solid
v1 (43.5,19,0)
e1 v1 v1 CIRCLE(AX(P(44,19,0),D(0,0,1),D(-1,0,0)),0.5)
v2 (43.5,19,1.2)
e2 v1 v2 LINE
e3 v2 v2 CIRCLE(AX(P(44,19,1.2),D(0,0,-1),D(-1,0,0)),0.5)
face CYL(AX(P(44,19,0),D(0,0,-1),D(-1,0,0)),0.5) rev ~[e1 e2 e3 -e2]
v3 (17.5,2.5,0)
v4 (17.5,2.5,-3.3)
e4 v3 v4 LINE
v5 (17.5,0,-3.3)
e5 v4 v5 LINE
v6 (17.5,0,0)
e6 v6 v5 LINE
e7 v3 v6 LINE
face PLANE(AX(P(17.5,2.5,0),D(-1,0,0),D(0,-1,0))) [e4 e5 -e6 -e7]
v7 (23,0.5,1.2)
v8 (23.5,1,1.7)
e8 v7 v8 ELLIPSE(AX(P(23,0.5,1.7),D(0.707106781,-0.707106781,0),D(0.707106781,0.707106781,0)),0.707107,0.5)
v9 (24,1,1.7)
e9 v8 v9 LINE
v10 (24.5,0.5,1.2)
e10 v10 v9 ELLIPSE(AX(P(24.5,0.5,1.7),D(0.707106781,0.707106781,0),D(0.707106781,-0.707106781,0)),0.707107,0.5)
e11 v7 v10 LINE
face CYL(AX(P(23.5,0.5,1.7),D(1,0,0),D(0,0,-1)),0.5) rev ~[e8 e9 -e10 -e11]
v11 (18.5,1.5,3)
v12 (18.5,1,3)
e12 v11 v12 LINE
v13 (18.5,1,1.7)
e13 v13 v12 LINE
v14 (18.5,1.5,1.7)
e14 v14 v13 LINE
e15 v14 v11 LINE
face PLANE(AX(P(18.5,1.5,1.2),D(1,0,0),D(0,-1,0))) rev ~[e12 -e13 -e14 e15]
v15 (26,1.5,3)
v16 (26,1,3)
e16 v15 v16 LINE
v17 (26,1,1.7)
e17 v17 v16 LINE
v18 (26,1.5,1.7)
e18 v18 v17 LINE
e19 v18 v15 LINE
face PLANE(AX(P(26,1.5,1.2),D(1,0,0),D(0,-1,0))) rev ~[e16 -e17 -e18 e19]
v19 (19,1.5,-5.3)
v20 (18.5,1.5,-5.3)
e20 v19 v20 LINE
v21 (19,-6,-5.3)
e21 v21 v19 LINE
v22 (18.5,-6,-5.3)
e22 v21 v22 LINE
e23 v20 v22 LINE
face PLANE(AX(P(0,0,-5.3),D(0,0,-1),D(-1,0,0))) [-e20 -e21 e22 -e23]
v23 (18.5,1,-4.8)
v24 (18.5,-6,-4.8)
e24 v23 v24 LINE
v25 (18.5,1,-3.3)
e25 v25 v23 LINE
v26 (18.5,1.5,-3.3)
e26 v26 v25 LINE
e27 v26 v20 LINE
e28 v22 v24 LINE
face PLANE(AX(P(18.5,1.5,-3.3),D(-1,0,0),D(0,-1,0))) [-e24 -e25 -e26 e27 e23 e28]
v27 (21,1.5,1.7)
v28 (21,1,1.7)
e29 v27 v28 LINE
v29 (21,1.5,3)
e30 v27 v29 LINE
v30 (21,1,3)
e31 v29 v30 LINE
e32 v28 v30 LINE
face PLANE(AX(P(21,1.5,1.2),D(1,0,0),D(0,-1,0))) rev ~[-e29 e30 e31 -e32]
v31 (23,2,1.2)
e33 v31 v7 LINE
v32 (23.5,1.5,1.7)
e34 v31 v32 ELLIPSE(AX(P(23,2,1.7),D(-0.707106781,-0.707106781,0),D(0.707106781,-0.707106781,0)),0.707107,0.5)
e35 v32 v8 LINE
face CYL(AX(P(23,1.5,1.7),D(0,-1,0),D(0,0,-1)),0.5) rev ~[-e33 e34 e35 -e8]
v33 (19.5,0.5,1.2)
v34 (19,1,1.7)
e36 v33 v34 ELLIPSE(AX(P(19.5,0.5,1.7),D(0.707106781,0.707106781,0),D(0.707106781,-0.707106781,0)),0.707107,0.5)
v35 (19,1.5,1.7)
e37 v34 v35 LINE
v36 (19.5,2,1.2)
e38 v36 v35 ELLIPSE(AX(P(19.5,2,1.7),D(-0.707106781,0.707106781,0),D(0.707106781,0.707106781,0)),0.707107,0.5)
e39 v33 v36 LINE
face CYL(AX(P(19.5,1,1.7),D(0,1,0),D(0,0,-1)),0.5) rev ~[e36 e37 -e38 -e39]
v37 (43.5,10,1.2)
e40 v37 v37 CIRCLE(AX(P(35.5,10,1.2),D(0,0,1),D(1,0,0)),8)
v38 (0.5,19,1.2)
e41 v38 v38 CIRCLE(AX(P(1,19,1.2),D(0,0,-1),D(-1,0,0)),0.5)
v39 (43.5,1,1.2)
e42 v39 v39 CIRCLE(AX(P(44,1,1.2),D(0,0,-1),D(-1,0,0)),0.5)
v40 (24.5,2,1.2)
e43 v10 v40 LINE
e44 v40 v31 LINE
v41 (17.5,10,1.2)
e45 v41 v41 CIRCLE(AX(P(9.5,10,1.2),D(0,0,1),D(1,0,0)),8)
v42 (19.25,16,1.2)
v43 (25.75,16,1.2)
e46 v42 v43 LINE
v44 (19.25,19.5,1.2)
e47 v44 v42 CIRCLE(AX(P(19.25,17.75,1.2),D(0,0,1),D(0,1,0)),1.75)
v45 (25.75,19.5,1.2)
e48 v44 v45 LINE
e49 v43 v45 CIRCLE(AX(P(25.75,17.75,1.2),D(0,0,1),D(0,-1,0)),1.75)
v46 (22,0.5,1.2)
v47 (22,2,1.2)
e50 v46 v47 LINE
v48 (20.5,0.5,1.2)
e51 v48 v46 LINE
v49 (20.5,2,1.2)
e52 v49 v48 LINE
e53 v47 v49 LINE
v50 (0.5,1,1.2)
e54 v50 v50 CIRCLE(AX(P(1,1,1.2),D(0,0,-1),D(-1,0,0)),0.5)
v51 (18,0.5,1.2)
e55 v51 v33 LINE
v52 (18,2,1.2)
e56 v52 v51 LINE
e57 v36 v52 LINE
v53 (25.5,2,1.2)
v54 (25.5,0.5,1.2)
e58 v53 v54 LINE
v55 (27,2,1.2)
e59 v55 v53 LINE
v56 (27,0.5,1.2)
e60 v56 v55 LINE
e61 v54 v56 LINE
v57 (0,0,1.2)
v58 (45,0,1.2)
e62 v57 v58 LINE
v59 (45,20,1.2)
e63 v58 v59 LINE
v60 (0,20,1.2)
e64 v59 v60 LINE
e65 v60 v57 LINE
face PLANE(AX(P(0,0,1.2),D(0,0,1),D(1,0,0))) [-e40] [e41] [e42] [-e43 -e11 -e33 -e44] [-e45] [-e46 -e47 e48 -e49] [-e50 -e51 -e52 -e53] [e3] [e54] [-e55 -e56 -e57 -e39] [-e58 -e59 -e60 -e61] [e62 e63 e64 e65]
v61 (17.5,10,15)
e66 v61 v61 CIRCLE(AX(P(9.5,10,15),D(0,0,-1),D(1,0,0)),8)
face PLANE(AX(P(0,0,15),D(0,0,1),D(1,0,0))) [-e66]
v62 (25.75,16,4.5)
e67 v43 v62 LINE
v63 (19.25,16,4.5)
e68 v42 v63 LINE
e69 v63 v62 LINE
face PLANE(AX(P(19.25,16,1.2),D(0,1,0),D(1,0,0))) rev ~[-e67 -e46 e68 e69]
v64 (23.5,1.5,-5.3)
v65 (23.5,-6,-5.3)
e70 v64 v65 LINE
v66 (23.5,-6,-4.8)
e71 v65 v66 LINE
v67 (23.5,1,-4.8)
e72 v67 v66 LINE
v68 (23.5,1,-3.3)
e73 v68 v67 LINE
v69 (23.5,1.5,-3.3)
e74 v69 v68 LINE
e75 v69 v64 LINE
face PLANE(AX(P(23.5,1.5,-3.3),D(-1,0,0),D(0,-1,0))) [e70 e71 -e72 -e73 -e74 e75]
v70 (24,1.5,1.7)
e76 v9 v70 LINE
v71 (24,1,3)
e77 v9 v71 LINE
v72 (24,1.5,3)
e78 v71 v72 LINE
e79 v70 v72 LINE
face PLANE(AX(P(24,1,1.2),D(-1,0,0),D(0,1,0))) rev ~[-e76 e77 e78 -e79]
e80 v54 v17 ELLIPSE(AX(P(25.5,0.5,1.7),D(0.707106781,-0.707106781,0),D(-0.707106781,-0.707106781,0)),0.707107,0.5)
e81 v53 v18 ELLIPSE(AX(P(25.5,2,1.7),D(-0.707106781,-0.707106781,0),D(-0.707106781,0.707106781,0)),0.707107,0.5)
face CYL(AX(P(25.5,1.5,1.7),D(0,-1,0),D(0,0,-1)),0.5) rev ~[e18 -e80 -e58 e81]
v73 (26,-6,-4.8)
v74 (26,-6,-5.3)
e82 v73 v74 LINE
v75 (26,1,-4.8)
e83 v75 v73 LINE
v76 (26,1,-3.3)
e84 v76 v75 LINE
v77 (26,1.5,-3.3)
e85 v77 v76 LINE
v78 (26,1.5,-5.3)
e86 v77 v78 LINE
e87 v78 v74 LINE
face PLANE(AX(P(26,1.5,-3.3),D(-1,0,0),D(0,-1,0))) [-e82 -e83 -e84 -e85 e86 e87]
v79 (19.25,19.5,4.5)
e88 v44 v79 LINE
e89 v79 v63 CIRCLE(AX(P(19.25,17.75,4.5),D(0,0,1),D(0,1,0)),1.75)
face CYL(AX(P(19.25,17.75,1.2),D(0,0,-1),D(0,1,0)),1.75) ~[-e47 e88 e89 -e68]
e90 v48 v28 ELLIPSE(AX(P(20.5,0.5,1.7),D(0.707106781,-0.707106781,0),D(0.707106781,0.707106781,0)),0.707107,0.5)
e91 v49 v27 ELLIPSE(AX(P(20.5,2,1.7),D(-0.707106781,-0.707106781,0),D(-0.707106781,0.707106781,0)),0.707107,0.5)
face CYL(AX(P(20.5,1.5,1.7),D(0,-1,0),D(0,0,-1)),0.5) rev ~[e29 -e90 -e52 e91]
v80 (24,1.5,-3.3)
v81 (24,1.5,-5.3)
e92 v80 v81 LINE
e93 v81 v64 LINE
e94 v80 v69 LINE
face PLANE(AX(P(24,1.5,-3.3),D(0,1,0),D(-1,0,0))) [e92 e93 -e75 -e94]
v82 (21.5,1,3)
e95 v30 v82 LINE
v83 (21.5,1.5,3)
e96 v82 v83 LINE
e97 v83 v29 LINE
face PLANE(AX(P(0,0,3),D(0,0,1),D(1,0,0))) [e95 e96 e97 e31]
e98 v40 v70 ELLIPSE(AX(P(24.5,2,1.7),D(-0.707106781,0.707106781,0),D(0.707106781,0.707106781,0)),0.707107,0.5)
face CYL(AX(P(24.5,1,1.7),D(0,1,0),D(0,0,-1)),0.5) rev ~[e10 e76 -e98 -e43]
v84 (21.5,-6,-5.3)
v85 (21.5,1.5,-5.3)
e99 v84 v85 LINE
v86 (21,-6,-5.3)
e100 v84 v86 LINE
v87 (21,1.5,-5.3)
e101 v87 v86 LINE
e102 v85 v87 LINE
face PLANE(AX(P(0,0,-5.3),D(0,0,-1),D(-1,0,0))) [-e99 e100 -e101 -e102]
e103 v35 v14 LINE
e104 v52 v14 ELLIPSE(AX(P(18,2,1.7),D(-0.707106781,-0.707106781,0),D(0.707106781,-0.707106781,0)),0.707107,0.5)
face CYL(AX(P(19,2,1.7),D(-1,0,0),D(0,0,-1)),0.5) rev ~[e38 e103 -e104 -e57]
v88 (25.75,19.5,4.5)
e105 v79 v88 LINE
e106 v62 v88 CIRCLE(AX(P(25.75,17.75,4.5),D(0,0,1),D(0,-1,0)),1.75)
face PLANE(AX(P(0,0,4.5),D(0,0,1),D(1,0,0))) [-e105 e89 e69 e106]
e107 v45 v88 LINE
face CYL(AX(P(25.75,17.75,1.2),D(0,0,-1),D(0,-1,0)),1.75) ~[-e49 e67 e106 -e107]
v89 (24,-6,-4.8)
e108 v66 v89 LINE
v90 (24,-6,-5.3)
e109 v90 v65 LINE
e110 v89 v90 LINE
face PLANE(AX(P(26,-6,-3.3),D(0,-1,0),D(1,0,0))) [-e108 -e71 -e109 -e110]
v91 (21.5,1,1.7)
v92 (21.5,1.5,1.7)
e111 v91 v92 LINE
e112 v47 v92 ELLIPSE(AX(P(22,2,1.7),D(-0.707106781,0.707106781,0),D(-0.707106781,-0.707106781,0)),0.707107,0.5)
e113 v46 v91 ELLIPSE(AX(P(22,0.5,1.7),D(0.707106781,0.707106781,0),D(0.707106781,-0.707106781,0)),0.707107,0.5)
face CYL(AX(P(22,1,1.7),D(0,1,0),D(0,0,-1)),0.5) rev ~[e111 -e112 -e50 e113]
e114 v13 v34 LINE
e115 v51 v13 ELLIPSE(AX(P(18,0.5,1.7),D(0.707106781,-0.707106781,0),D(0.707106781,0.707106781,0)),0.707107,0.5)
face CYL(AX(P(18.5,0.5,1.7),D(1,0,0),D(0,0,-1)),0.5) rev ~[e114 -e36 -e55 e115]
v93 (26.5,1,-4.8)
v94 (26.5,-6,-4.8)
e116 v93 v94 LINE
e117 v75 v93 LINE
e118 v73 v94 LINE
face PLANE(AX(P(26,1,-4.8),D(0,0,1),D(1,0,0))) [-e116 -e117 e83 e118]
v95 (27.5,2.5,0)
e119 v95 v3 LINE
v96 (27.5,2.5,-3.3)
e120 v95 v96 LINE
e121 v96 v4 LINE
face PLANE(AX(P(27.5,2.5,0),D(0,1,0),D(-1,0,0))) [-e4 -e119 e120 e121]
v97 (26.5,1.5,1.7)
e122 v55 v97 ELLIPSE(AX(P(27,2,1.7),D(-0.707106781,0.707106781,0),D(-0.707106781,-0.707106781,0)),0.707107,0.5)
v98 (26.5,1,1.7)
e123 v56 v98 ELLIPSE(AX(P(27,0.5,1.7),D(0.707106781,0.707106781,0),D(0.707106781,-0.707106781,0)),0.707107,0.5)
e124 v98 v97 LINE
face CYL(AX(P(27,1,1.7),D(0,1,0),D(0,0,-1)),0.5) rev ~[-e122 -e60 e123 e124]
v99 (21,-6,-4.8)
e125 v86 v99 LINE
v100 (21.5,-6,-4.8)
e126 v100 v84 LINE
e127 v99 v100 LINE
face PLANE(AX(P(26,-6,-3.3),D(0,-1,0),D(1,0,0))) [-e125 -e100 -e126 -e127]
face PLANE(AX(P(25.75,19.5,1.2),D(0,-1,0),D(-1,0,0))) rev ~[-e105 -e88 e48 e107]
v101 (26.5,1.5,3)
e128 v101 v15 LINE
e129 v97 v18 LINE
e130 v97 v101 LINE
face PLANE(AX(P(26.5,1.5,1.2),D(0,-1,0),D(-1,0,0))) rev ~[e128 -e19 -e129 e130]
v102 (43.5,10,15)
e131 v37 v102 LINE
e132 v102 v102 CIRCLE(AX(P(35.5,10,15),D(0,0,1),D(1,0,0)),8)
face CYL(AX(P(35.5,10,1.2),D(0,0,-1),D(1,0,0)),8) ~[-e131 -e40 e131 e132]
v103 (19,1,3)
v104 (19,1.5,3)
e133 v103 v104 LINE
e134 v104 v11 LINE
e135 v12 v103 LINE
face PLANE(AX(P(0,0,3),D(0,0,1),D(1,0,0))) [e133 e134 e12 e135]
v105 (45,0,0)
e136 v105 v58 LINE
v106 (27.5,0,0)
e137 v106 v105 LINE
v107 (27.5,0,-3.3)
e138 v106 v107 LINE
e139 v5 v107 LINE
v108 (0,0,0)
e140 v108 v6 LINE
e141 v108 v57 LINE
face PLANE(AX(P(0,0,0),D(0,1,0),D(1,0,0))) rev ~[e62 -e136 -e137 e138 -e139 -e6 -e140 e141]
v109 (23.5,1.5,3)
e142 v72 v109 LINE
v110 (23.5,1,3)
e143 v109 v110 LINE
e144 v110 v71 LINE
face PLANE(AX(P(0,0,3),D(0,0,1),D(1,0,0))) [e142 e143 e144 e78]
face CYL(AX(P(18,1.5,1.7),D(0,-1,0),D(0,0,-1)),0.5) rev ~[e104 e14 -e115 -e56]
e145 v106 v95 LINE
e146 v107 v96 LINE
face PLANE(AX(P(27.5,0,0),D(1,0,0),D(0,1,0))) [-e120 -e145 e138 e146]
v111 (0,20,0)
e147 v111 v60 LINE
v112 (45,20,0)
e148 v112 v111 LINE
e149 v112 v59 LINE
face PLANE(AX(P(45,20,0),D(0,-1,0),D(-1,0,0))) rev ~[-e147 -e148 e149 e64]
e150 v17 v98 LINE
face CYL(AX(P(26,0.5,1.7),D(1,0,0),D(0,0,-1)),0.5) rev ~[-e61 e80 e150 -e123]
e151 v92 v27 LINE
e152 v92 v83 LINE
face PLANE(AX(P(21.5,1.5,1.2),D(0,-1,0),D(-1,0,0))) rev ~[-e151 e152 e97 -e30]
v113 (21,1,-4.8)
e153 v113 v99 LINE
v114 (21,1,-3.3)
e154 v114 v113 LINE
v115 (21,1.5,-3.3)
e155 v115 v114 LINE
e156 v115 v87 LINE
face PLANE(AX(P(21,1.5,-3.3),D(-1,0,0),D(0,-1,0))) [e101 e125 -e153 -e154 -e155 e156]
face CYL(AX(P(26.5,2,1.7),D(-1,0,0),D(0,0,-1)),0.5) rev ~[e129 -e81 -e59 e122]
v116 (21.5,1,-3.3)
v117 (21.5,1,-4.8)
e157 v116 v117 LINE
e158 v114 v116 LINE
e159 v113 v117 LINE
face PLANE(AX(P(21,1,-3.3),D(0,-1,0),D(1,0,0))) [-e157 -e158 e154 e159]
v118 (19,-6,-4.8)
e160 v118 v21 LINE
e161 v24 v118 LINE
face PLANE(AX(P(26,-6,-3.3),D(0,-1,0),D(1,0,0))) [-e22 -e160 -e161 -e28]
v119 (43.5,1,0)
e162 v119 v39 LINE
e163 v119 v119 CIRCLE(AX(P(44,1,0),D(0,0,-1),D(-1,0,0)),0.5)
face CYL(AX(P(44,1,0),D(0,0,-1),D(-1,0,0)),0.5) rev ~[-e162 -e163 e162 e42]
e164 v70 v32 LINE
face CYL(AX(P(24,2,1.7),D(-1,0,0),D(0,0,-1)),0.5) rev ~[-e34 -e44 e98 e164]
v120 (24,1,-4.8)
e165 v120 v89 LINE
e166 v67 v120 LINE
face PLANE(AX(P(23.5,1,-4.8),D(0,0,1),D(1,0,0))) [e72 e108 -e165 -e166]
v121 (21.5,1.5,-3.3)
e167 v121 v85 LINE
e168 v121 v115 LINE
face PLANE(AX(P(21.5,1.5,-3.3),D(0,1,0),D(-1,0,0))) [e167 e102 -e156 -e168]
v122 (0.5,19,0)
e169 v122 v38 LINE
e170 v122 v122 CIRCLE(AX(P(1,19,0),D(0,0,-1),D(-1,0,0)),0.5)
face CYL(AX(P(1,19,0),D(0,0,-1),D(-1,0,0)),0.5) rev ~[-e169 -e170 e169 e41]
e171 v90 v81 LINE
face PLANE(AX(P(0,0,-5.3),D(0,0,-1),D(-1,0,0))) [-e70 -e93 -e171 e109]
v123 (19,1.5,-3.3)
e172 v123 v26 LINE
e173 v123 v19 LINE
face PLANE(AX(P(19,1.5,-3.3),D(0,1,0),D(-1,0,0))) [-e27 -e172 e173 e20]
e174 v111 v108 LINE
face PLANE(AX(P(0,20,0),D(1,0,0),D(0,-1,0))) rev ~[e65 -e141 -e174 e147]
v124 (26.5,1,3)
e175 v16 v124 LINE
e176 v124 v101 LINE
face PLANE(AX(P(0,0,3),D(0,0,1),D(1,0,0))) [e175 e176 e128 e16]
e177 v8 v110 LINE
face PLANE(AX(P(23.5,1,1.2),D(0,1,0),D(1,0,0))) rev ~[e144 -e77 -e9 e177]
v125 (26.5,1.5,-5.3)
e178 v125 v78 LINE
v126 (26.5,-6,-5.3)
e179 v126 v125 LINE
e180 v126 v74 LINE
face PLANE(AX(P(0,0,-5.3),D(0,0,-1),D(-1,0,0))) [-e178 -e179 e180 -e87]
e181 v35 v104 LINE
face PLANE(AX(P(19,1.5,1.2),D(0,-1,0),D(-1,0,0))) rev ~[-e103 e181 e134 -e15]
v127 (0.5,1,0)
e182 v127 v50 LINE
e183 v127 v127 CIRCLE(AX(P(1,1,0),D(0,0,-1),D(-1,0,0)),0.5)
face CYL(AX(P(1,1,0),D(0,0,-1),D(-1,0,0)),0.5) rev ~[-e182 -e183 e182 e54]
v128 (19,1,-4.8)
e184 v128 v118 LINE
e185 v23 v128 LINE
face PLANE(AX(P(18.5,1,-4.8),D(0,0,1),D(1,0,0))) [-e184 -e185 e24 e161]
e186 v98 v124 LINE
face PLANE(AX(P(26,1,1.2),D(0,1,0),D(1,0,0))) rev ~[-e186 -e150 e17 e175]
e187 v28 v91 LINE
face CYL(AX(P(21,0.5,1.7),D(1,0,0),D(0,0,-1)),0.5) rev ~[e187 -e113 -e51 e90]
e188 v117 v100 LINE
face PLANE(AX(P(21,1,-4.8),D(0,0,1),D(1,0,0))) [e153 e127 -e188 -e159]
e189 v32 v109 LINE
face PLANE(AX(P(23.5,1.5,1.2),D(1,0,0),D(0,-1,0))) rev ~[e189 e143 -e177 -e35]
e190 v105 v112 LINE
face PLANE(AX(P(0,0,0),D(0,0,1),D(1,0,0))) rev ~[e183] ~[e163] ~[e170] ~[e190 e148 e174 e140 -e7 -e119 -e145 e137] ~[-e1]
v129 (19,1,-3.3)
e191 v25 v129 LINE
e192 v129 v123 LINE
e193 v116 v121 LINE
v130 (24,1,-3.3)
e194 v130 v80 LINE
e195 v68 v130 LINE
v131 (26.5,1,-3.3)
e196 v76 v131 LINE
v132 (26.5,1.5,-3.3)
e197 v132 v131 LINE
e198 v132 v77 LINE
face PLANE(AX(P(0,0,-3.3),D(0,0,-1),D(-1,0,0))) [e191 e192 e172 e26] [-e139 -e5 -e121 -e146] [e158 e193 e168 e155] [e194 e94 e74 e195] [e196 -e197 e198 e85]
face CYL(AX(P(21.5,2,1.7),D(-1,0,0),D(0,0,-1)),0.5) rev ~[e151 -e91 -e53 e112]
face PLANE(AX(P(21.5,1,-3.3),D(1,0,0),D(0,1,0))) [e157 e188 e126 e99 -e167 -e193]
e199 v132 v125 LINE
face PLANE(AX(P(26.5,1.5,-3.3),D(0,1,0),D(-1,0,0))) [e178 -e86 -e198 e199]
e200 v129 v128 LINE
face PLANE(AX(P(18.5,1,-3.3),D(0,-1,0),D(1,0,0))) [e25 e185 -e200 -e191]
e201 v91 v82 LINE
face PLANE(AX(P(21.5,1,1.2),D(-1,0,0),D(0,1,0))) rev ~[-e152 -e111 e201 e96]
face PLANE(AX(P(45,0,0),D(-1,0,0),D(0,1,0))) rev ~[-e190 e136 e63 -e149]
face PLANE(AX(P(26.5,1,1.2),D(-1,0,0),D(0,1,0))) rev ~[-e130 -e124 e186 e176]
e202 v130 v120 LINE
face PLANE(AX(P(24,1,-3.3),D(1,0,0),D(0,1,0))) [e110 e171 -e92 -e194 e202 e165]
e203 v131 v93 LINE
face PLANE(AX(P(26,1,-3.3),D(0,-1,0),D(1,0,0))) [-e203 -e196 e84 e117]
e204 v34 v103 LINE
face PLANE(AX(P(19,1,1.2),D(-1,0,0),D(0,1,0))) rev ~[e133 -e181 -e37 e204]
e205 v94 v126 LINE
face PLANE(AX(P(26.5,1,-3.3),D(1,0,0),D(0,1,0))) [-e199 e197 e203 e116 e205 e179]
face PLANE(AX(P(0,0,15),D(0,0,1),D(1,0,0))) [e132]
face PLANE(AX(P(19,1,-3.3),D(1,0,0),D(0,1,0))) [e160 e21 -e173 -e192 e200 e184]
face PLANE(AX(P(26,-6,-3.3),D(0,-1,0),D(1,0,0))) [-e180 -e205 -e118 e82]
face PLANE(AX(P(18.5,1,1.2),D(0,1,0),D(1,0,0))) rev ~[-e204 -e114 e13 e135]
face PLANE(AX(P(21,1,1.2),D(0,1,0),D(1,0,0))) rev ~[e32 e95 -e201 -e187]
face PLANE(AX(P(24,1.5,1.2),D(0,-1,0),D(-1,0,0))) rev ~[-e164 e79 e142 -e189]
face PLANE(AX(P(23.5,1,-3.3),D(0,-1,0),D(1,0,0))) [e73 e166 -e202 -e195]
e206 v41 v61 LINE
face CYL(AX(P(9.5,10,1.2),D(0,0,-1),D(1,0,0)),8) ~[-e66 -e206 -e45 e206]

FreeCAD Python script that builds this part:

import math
import FreeCAD as App
import Part
import Sketcher

V = App.Vector
Q = App.Units.Quantity


def edges_at(feature, points):
    """Names of the edges that pass closest to the given points."""
    edges = feature.Shape.Edges
    near = lambda p: min(range(len(edges)), key=lambda i: edges[i].distToShape(Part.Vertex(*p))[0])
    return sorted({f"Edge{near(p) + 1}" for p in points})

doc = App.newDocument("Part")
body = doc.addObject("PartDesign::Body", "Body")

# Sketch on XY plane
sketch1 = doc.addObject("Sketcher::SketchObject", "Sketch")
body.addObject(sketch1)
sketch1.AttachmentSupport = (doc.XY_Plane, [""])
sketch1.MapMode = "FlatFace"
sketch1.addGeometry(Part.LineSegment(V(0, 20, 0), V(0, 0, 0)), False)
sketch1.addGeometry(Part.LineSegment(V(0, 0, 0), V(45, 0, 0)), False)
sketch1.addGeometry(Part.LineSegment(V(45, 0, 0), V(45, 20, 0)), False)
sketch1.addGeometry(Part.LineSegment(V(45, 20, 0), V(0, 20, 0)), False)
sketch1.addConstraint(Sketcher.Constraint("Coincident", 0, 2, 1, 1))
sketch1.addConstraint(Sketcher.Constraint("Coincident", 1, 2, 2, 1))
sketch1.addConstraint(Sketcher.Constraint("Coincident", 2, 2, 3, 1))
sketch1.addConstraint(Sketcher.Constraint("Coincident", 3, 2, 0, 1))
sketch1.addConstraint(Sketcher.Constraint("Vertical", 0))
sketch1.addConstraint(Sketcher.Constraint("Horizontal", 1))
sketch1.addConstraint(Sketcher.Constraint("Vertical", 2))
sketch1.addConstraint(Sketcher.Constraint("Horizontal", 3))
sketch1.addConstraint(Sketcher.Constraint("Coincident", 0, 2, -1, 1))
sketch1.addConstraint(Sketcher.Constraint("DistanceX", 1, 1, 1, 2, Q("45 mm")))
sketch1.addConstraint(Sketcher.Constraint("DistanceY", 0, 2, 0, 1, Q("20 mm")))
pad1 = doc.addObject("PartDesign::Pad", "Pad")
body.addObject(pad1)
pad1.Profile = sketch1
pad1.Length = 1.2

# Sketch on XY plane
sketch2 = doc.addObject("Sketcher::SketchObject", "Sketch001")
body.addObject(sketch2)
sketch2.AttachmentSupport = (doc.XY_Plane, [""])
sketch2.MapMode = "FlatFace"
sketch2.AttachmentOffset = App.Placement(V(0, 0, 1.2), App.Rotation())
sketch2.addGeometry(Part.Circle(V(10, 10, 0), V(0, 0, 1), 8), False)
sketch2.addGeometry(Part.Circle(V(36, 10, 0), V(0, 0, 1), 8), False)
sketch2.addConstraint(Sketcher.Constraint("Equal", 0, 1))
sketch2.addConstraint(Sketcher.Constraint("Horizontal", 0, 3, 1, 3))
sketch2.addConstraint(Sketcher.Constraint("Diameter", 0, Q("16 mm")))
sketch2.addConstraint(Sketcher.Constraint("DistanceY", -1, 1, 0, 3, Q("10 mm")))
sketch2.addConstraint(Sketcher.Constraint("DistanceX", 0, 3, 1, 3, Q("26 mm")))
sketch2.addConstraint(Sketcher.Constraint("DistanceX", -1, 1, 0, 3, Q("9.5 mm")))
pad2 = doc.addObject("PartDesign::Pad", "Pad001")
body.addObject(pad2)
pad2.Profile = sketch2
pad2.Length = 13.8

# Sketch on XY plane
sketch3 = doc.addObject("Sketcher::SketchObject", "Sketch002")
body.addObject(sketch3)
sketch3.AttachmentSupport = (doc.XY_Plane, [""])
sketch3.MapMode = "FlatFace"
sketch3.AttachmentOffset = App.Placement(V(0, 0, 1.2), App.Rotation())
sketch3.addGeometry(Part.ArcOfCircle(Part.Circle(V(25.8, 17.8, 0), V(0, 0, 1), 1.8), math.radians(-90), math.radians(90)), False)
sketch3.addGeometry(Part.LineSegment(V(25.8, 19.5, 0), V(19.2, 19.5, 0)), False)
sketch3.addGeometry(Part.ArcOfCircle(Part.Circle(V(19.2, 17.8, 0), V(0, 0, 1), 1.8), math.radians(90), math.radians(270)), False)
sketch3.addGeometry(Part.LineSegment(V(19.2, 16, 0), V(25.8, 16, 0)), False)
sketch3.addConstraint(Sketcher.Constraint("Tangent", 0, 2, 1, 1))
sketch3.addConstraint(Sketcher.Constraint("Tangent", 1, 2, 2, 1))
sketch3.addConstraint(Sketcher.Constraint("Tangent", 2, 2, 3, 1))
sketch3.addConstraint(Sketcher.Constraint("Tangent", 3, 2, 0, 1))
sketch3.addConstraint(Sketcher.Constraint("Horizontal", 1))
sketch3.addConstraint(Sketcher.Constraint("Horizontal", 3))
sketch3.addConstraint(Sketcher.Constraint("Radius", 0, Q("1.75 mm")))
sketch3.addConstraint(Sketcher.Constraint("DistanceX", 1, 2, 1, 1, Q("6.5 mm")))
sketch3.addConstraint(Sketcher.Constraint("DistanceY", -1, 1, 2, 2, Q("16 mm")))
sketch3.addConstraint(Sketcher.Constraint("DistanceX", -1, 1, 0, 3, Q("25.75 mm")))
pad3 = doc.addObject("PartDesign::Pad", "Pad002")
body.addObject(pad3)
pad3.Profile = sketch3
pad3.Length = 3.3

# Sketch on XY plane
sketch4 = doc.addObject("Sketcher::SketchObject", "Sketch003")
body.addObject(sketch4)
sketch4.AttachmentSupport = (doc.XY_Plane, [""])
sketch4.MapMode = "FlatFace"
sketch4.addGeometry(Part.Circle(V(44, 19, 0), V(0, 0, 1), 0.5), False)
sketch4.addGeometry(Part.Circle(V(44, 1, 0), V(0, 0, 1), 0.5), False)
sketch4.addGeometry(Part.Circle(V(1, 19, 0), V(0, 0, 1), 0.5), False)
sketch4.addGeometry(Part.Circle(V(1, 1, 0), V(0, 0, 1), 0.5), False)
sketch4.addConstraint(Sketcher.Constraint("Equal", 0, 1))
sketch4.addConstraint(Sketcher.Constraint("Equal", 1, 2))
sketch4.addConstraint(Sketcher.Constraint("Equal", 2, 3))
sketch4.addConstraint(Sketcher.Constraint("Horizontal", 0, 3, 2, 3))
sketch4.addConstraint(Sketcher.Constraint("Horizontal", 1, 3, 3, 3))
sketch4.addConstraint(Sketcher.Constraint("Vertical", 0, 3, 1, 3))
sketch4.addConstraint(Sketcher.Constraint("Vertical", 2, 3, 3, 3))
sketch4.addConstraint(Sketcher.Constraint("Diameter", 0, Q("1 mm")))
sketch4.addConstraint(Sketcher.Constraint("DistanceY", -1, 1, 1, 3, Q("1 mm")))
sketch4.addConstraint(Sketcher.Constraint("DistanceX", -1, 1, 2, 3, Q("1 mm")))
sketch4.addConstraint(Sketcher.Constraint("DistanceX", -1, 1, 0, 3, Q("44 mm")))
sketch4.addConstraint(Sketcher.Constraint("DistanceY", -1, 1, 0, 3, Q("19 mm")))
pocket1 = doc.addObject("PartDesign::Pocket", "Pocket")
body.addObject(pocket1)
pocket1.Profile = sketch4
pocket1.Type = "ThroughAll"
pocket1.Reversed = True

# Sketch on XY plane
sketch5 = doc.addObject("Sketcher::SketchObject", "Sketch004")
body.addObject(sketch5)
sketch5.AttachmentSupport = (doc.XY_Plane, [""])
sketch5.MapMode = "FlatFace"
sketch5.addGeometry(Part.LineSegment(V(17.5, 2.5, 0), V(27.5, 2.5, 0)), False)
sketch5.addGeometry(Part.LineSegment(V(27.5, 2.5, 0), V(27.5, 0, 0)), False)
sketch5.addGeometry(Part.LineSegment(V(27.5, 0, 0), V(17.5, 0, 0)), False)
sketch5.addGeometry(Part.LineSegment(V(17.5, 0, 0), V(17.5, 2.5, 0)), False)
sketch5.addConstraint(Sketcher.Constraint("Coincident", 0, 2, 1, 1))
sketch5.addConstraint(Sketcher.Constraint("Coincident", 1, 2, 2, 1))
sketch5.addConstraint(Sketcher.Constraint("Coincident", 2, 2, 3, 1))
sketch5.addConstraint(Sketcher.Constraint("Coincident", 3, 2, 0, 1))
sketch5.addConstraint(Sketcher.Constraint("Horizontal", 0))
sketch5.addConstraint(Sketcher.Constraint("Vertical", 1))
sketch5.addConstraint(Sketcher.Constraint("Horizontal", 2))
sketch5.addConstraint(Sketcher.Constraint("Vertical", 3))
sketch5.addConstraint(Sketcher.Constraint("PointOnObject", 1, 2, -1))
sketch5.addConstraint(Sketcher.Constraint("DistanceX", 0, 1, 0, 2, Q("10 mm")))
sketch5.addConstraint(Sketcher.Constraint("DistanceY", 1, 2, 1, 1, Q("2.5 mm")))
sketch5.addConstraint(Sketcher.Constraint("DistanceX", -1, 1, 0, 2, Q("27.5 mm")))
pad4 = doc.addObject("PartDesign::Pad", "Pad003")
body.addObject(pad4)
pad4.Profile = sketch5
pad4.Length = 3.3
pad4.Reversed = True

# Sketch on XY plane
sketch6 = doc.addObject("Sketcher::SketchObject", "Sketch005")
body.addObject(sketch6)
sketch6.AttachmentSupport = (doc.XY_Plane, [""])
sketch6.MapMode = "FlatFace"
sketch6.AttachmentOffset = App.Placement(V(0, 0, -3.3), App.Rotation())
sketch6.addGeometry(Part.LineSegment(V(26, 1.5, 0), V(26.5, 1.5, 0)), False)
sketch6.addGeometry(Part.LineSegment(V(26.5, 1.5, 0), V(26.5, 1, 0)), False)
sketch6.addGeometry(Part.LineSegment(V(26.5, 1, 0), V(26, 1, 0)), False)
sketch6.addGeometry(Part.LineSegment(V(26, 1, 0), V(26, 1.5, 0)), False)
sketch6.addGeometry(Part.LineSegment(V(23.5, 1.5, 0), V(24, 1.5, 0)), False)
sketch6.addGeometry(Part.LineSegment(V(24, 1.5, 0), V(24, 1, 0)), False)
sketch6.addGeometry(Part.LineSegment(V(24, 1, 0), V(23.5, 1, 0)), False)
sketch6.addGeometry(Part.LineSegment(V(23.5, 1, 0), V(23.5, 1.5, 0)), False)
sketch6.addGeometry(Part.LineSegment(V(21, 1.5, 0), V(21.5, 1.5, 0)), False)
sketch6.addGeometry(Part.LineSegment(V(21.5, 1.5, 0), V(21.5, 1, 0)), False)
sketch6.addGeometry(Part.LineSegment(V(21.5, 1, 0), V(21, 1, 0)), False)
sketch6.addGeometry(Part.LineSegment(V(21, 1, 0), V(21, 1.5, 0)), False)
sketch6.addGeometry(Part.LineSegment(V(18.5, 1.5, 0), V(19, 1.5, 0)), False)
sketch6.addGeometry(Part.LineSegment(V(19, 1.5, 0), V(19, 1, 0)), False)
sketch6.addGeometry(Part.LineSegment(V(19, 1, 0), V(18.5, 1, 0)), False)
sketch6.addGeometry(Part.LineSegment(V(18.5, 1, 0), V(18.5, 1.5, 0)), False)
sketch6.addConstraint(Sketcher.Constraint("Coincident", 0, 2, 1, 1))
sketch6.addConstraint(Sketcher.Constraint("Coincident", 1, 2, 2, 1))
sketch6.addConstraint(Sketcher.Constraint("Coincident", 2, 2, 3, 1))
sketch6.addConstraint(Sketcher.Constraint("Coincident", 3, 2, 0, 1))
sketch6.addConstraint(Sketcher.Constraint("Coincident", 4, 2, 5, 1))
sketch6.addConstraint(Sketcher.Constraint("Coincident", 5, 2, 6, 1))
sketch6.addConstraint(Sketcher.Constraint("Coincident", 6, 2, 7, 1))
sketch6.addConstraint(Sketcher.Constraint("Coincident", 7, 2, 4, 1))
sketch6.addConstraint(Sketcher.Constraint("Coincident", 8, 2, 9, 1))
sketch6.addConstraint(Sketcher.Constraint("Coincident", 9, 2, 10, 1))
sketch6.addConstraint(Sketcher.Constraint("Coincident", 10, 2, 11, 1))
sketch6.addConstraint(Sketcher.Constraint("Coincident", 11, 2, 8, 1))
sketch6.addConstraint(Sketcher.Constraint("Coincident", 12, 2, 13, 1))
sketch6.addConstraint(Sketcher.Constraint("Coincident", 13, 2, 14, 1))
sketch6.addConstraint(Sketcher.Constraint("Coincident", 14, 2, 15, 1))
sketch6.addConstraint(Sketcher.Constraint("Coincident", 15, 2, 12, 1))
sketch6.addConstraint(Sketcher.Constraint("Horizontal", 0))
sketch6.addConstraint(Sketcher.Constraint("Vertical", 1))
sketch6.addConstraint(Sketcher.Constraint("Horizontal", 2))
sketch6.addConstraint(Sketcher.Constraint("Vertical", 3))
sketch6.addConstraint(Sketcher.Constraint("Horizontal", 4))
sketch6.addConstraint(Sketcher.Constraint("Vertical", 5))
sketch6.addConstraint(Sketcher.Constraint("Horizontal", 6))
sketch6.addConstraint(Sketcher.Constraint("Vertical", 7))
sketch6.addConstraint(Sketcher.Constraint("Horizontal", 8))
sketch6.addConstraint(Sketcher.Constraint("Vertical", 9))
sketch6.addConstraint(Sketcher.Constraint("Horizontal", 10))
sketch6.addConstraint(Sketcher.Constraint("Vertical", 11))
sketch6.addConstraint(Sketcher.Constraint("Horizontal", 12))
sketch6.addConstraint(Sketcher.Constraint("Vertical", 13))
sketch6.addConstraint(Sketcher.Constraint("Horizontal", 14))
sketch6.addConstraint(Sketcher.Constraint("Vertical", 15))
sketch6.addConstraint(Sketcher.Constraint("Horizontal", 3, 2, 4, 2))
sketch6.addConstraint(Sketcher.Constraint("Horizontal", 2, 2, 5, 2))
sketch6.addConstraint(Sketcher.Constraint("Horizontal", 7, 2, 8, 2))
sketch6.addConstraint(Sketcher.Constraint("Horizontal", 6, 2, 9, 2))
sketch6.addConstraint(Sketcher.Constraint("Horizontal", 11, 2, 12, 2))
sketch6.addConstraint(Sketcher.Constraint("Horizontal", 10, 2, 13, 2))
sketch6.addConstraint(Sketcher.Constraint("Equal", 2, 4))
sketch6.addConstraint(Sketcher.Constraint("Equal", 6, 8))
sketch6.addConstraint(Sketcher.Constraint("Equal", 10, 12))
sketch6.addConstraint(Sketcher.Constraint("Equal", 14, 1))
sketch6.addConstraint(Sketcher.Constraint("DistanceX", 0, 1, 0, 2, Q("0.5 mm")))
sketch6.addConstraint(Sketcher.Constraint("DistanceY", -1, 1, 1, 2, Q("1 mm")))
sketch6.addConstraint(Sketcher.Constraint("DistanceX", 4, 2, 0, 2, Q("2.5 mm")))
sketch6.addConstraint(Sketcher.Constraint("DistanceX", 8, 2, 4, 2, Q("2.5 mm")))
sketch6.addConstraint(Sketcher.Constraint("DistanceX", 12, 2, 8, 2, Q("2.5 mm")))
sketch6.addConstraint(Sketcher.Constraint("DistanceX", -1, 1, 2, 2, Q("26 mm")))
pad5 = doc.addObject("PartDesign::Pad", "Pad004")
body.addObject(pad5)
pad5.Profile = sketch6
pad5.Length = 2
pad5.Reversed = True

# Sketch on XZ plane
sketch7 = doc.addObject("Sketcher::SketchObject", "Sketch006")
body.addObject(sketch7)
sketch7.AttachmentSupport = (doc.XZ_Plane, [""])
sketch7.MapMode = "FlatFace"
sketch7.AttachmentOffset = App.Placement(V(0, 0, -1), App.Rotation())
sketch7.addGeometry(Part.LineSegment(V(26, -5.3, 0), V(26.5, -5.3, 0)), False)
sketch7.addGeometry(Part.LineSegment(V(26.5, -5.3, 0), V(26.5, -4.8, 0)), False)
sketch7.addGeometry(Part.LineSegment(V(26.5, -4.8, 0), V(26, -4.8, 0)), False)
sketch7.addGeometry(Part.LineSegment(V(26, -4.8, 0), V(26, -5.3, 0)), False)
sketch7.addGeometry(Part.LineSegment(V(23.5, -5.3, 0), V(24, -5.3, 0)), False)
sketch7.addGeometry(Part.LineSegment(V(24, -5.3, 0), V(24, -4.8, 0)), False)
sketch7.addGeometry(Part.LineSegment(V(24, -4.8, 0), V(23.5, -4.8, 0)), False)
sketch7.addGeometry(Part.LineSegment(V(23.5, -4.8, 0), V(23.5, -5.3, 0)), False)
sketch7.addGeometry(Part.LineSegment(V(21, -5.3, 0), V(21.5, -5.3, 0)), False)
sketch7.addGeometry(Part.LineSegment(V(21.5, -5.3, 0), V(21.5, -4.8, 0)), False)
sketch7.addGeometry(Part.LineSegment(V(21.5, -4.8, 0), V(21, -4.8, 0)), False)
sketch7.addGeometry(Part.LineSegment(V(21, -4.8, 0), V(21, -5.3, 0)), False)
sketch7.addGeometry(Part.LineSegment(V(18.5, -5.3, 0), V(19, -5.3, 0)), False)
sketch7.addGeometry(Part.LineSegment(V(19, -5.3, 0), V(19, -4.8, 0)), False)
sketch7.addGeometry(Part.LineSegment(V(19, -4.8, 0), V(18.5, -4.8, 0)), False)
sketch7.addGeometry(Part.LineSegment(V(18.5, -4.8, 0), V(18.5, -5.3, 0)), False)
sketch7.addConstraint(Sketcher.Constraint("Coincident", 0, 2, 1, 1))
sketch7.addConstraint(Sketcher.Constraint("Coincident", 1, 2, 2, 1))
sketch7.addConstraint(Sketcher.Constraint("Coincident", 2, 2, 3, 1))
sketch7.addConstraint(Sketcher.Constraint("Coincident", 3, 2, 0, 1))
sketch7.addConstraint(Sketcher.Constraint("Coincident", 4, 2, 5, 1))
sketch7.addConstraint(Sketcher.Constraint("Coincident", 5, 2, 6, 1))
sketch7.addConstraint(Sketcher.Constraint("Coincident", 6, 2, 7, 1))
sketch7.addConstraint(Sketcher.Constraint("Coincident", 7, 2, 4, 1))
sketch7.addConstraint(Sketcher.Constraint("Coincident", 8, 2, 9, 1))
sketch7.addConstraint(Sketcher.Constraint("Coincident", 9, 2, 10, 1))
sketch7.addConstraint(Sketcher.Constraint("Coincident", 10, 2, 11, 1))
sketch7.addConstraint(Sketcher.Constraint("Coincident", 11, 2, 8, 1))
sketch7.addConstraint(Sketcher.Constraint("Coincident", 12, 2, 13, 1))
sketch7.addConstraint(Sketcher.Constraint("Coincident", 13, 2, 14, 1))
sketch7.addConstraint(Sketcher.Constraint("Coincident", 14, 2, 15, 1))
sketch7.addConstraint(Sketcher.Constraint("Coincident", 15, 2, 12, 1))
sketch7.addConstraint(Sketcher.Constraint("Horizontal", 0))
sketch7.addConstraint(Sketcher.Constraint("Vertical", 1))
sketch7.addConstraint(Sketcher.Constraint("Horizontal", 2))
sketch7.addConstraint(Sketcher.Constraint("Vertical", 3))
sketch7.addConstraint(Sketcher.Constraint("Horizontal", 4))
sketch7.addConstraint(Sketcher.Constraint("Vertical", 5))
sketch7.addConstraint(Sketcher.Constraint("Horizontal", 6))
sketch7.addConstraint(Sketcher.Constraint("Vertical", 7))
sketch7.addConstraint(Sketcher.Constraint("Horizontal", 8))
sketch7.addConstraint(Sketcher.Constraint("Vertical", 9))
sketch7.addConstraint(Sketcher.Constraint("Horizontal", 10))
sketch7.addConstraint(Sketcher.Constraint("Vertical", 11))
sketch7.addConstraint(Sketcher.Constraint("Horizontal", 12))
sketch7.addConstraint(Sketcher.Constraint("Vertical", 13))
sketch7.addConstraint(Sketcher.Constraint("Horizontal", 14))
sketch7.addConstraint(Sketcher.Constraint("Vertical", 15))
sketch7.addConstraint(Sketcher.Constraint("Horizontal", 3, 2, 4, 2))
sketch7.addConstraint(Sketcher.Constraint("Horizontal", 2, 2, 5, 2))
sketch7.addConstraint(Sketcher.Constraint("Horizontal", 7, 2, 8, 2))
sketch7.addConstraint(Sketcher.Constraint("Horizontal", 6, 2, 9, 2))
sketch7.addConstraint(Sketcher.Constraint("Horizontal", 11, 2, 12, 2))
sketch7.addConstraint(Sketcher.Constraint("Horizontal", 10, 2, 13, 2))
sketch7.addConstraint(Sketcher.Constraint("Equal", 2, 4))
sketch7.addConstraint(Sketcher.Constraint("Equal", 6, 8))
sketch7.addConstraint(Sketcher.Constraint("Equal", 10, 12))
sketch7.addConstraint(Sketcher.Constraint("Equal", 14, 1))
sketch7.addConstraint(Sketcher.Constraint("DistanceX", 4, 2, 0, 2, Q("2.5 mm")))
sketch7.addConstraint(Sketcher.Constraint("DistanceX", 8, 2, 4, 2, Q("2.5 mm")))
sketch7.addConstraint(Sketcher.Constraint("DistanceX", 12, 2, 8, 2, Q("2.5 mm")))
sketch7.addConstraint(Sketcher.Constraint("DistanceX", 0, 1, 0, 2, Q("0.5 mm")))
sketch7.addConstraint(Sketcher.Constraint("DistanceX", -1, 1, 2, 2, Q("26 mm")))
sketch7.addConstraint(Sketcher.Constraint("DistanceY", 0, 2, -1, 1, Q("5.3 mm")))
pad6 = doc.addObject("PartDesign::Pad", "Pad005")
body.addObject(pad6)
pad6.Profile = sketch7
pad6.Length = 7

# Sketch on XY plane
sketch8 = doc.addObject("Sketcher::SketchObject", "Sketch007")
body.addObject(sketch8)
sketch8.AttachmentSupport = (doc.XY_Plane, [""])
sketch8.MapMode = "FlatFace"
sketch8.AttachmentOffset = App.Placement(V(0, 0, 1.2), App.Rotation())
sketch8.addGeometry(Part.LineSegment(V(26.5, 1, 0), V(26.5, 1.5, 0)), False)
sketch8.addGeometry(Part.LineSegment(V(26.5, 1.5, 0), V(26, 1.5, 0)), False)
sketch8.addGeometry(Part.LineSegment(V(26, 1.5, 0), V(26, 1, 0)), False)
sketch8.addGeometry(Part.LineSegment(V(26, 1, 0), V(26.5, 1, 0)), False)
sketch8.addGeometry(Part.LineSegment(V(21, 1.5, 0), V(21, 1, 0)), False)
sketch8.addGeometry(Part.LineSegment(V(21, 1, 0), V(21.5, 1, 0)), False)
sketch8.addGeometry(Part.LineSegment(V(21.5, 1, 0), V(21.5, 1.5, 0)), False)
sketch8.addGeometry(Part.LineSegment(V(21.5, 1.5, 0), V(21, 1.5, 0)), False)
sketch8.addGeometry(Part.LineSegment(V(23.5, 1.5, 0), V(23.5, 1, 0)), False)
sketch8.addGeometry(Part.LineSegment(V(23.5, 1, 0), V(24, 1, 0)), False)
sketch8.addGeometry(Part.LineSegment(V(24, 1, 0), V(24, 1.5, 0)), False)
sketch8.addGeometry(Part.LineSegment(V(24, 1.5, 0), V(23.5, 1.5, 0)), False)
sketch8.addGeometry(Part.LineSegment(V(18.5, 1.5, 0), V(18.5, 1, 0)), False)
sketch8.addGeometry(Part.LineSegment(V(18.5, 1, 0), V(19, 1, 0)), False)
sketch8.addGeometry(Part.LineSegment(V(19, 1, 0), V(19, 1.5, 0)), False)
sketch8.addGeometry(Part.LineSegment(V(19, 1.5, 0), V(18.5, 1.5, 0)), False)
sketch8.addConstraint(Sketcher.Constraint("Coincident", 0, 2, 1, 1))
sketch8.addConstraint(Sketcher.Constraint("Coincident", 1, 2, 2, 1))
sketch8.addConstraint(Sketcher.Constraint("Coincident", 2, 2, 3, 1))
sketch8.addConstraint(Sketcher.Constraint("Coincident", 3, 2, 0, 1))
sketch8.addConstraint(Sketcher.Constraint("Coincident", 4, 2, 5, 1))
sketch8.addConstraint(Sketcher.Constraint("Coincident", 5, 2, 6, 1))
sketch8.addConstraint(Sketcher.Constraint("Coincident", 6, 2, 7, 1))
sketch8.addConstraint(Sketcher.Constraint("Coincident", 7, 2, 4, 1))
sketch8.addConstraint(Sketcher.Constraint("Coincident", 8, 2, 9, 1))
sketch8.addConstraint(Sketcher.Constraint("Coincident", 9, 2, 10, 1))
sketch8.addConstraint(Sketcher.Constraint("Coincident", 10, 2, 11, 1))
sketch8.addConstraint(Sketcher.Constraint("Coincident", 11, 2, 8, 1))
sketch8.addConstraint(Sketcher.Constraint("Coincident", 12, 2, 13, 1))
sketch8.addConstraint(Sketcher.Constraint("Coincident", 13, 2, 14, 1))
sketch8.addConstraint(Sketcher.Constraint("Coincident", 14, 2, 15, 1))
sketch8.addConstraint(Sketcher.Constraint("Coincident", 15, 2, 12, 1))
sketch8.addConstraint(Sketcher.Constraint("Vertical", 0))
sketch8.addConstraint(Sketcher.Constraint("Horizontal", 1))
sketch8.addConstraint(Sketcher.Constraint("Vertical", 2))
sketch8.addConstraint(Sketcher.Constraint("Horizontal", 3))
sketch8.addConstraint(Sketcher.Constraint("Vertical", 4))
sketch8.addConstraint(Sketcher.Constraint("Horizontal", 5))
sketch8.addConstraint(Sketcher.Constraint("Vertical", 6))
sketch8.addConstraint(Sketcher.Constraint("Horizontal", 7))
sketch8.addConstraint(Sketcher.Constraint("Vertical", 8))
sketch8.addConstraint(Sketcher.Constraint("Horizontal", 9))
sketch8.addConstraint(Sketcher.Constraint("Vertical", 10))
sketch8.addConstraint(Sketcher.Constraint("Horizontal", 11))
sketch8.addConstraint(Sketcher.Constraint("Vertical", 12))
sketch8.addConstraint(Sketcher.Constraint("Horizontal", 13))
sketch8.addConstraint(Sketcher.Constraint("Vertical", 14))
sketch8.addConstraint(Sketcher.Constraint("Horizontal", 15))
sketch8.addConstraint(Sketcher.Constraint("Horizontal", 3, 2, 4, 2))
sketch8.addConstraint(Sketcher.Constraint("Horizontal", 1, 2, 6, 2))
sketch8.addConstraint(Sketcher.Constraint("Horizontal", 5, 2, 8, 2))
sketch8.addConstraint(Sketcher.Constraint("Horizontal", 7, 2, 10, 2))
sketch8.addConstraint(Sketcher.Constraint("Horizontal", 9, 2, 12, 2))
sketch8.addConstraint(Sketcher.Constraint("Horizontal", 11, 2, 14, 2))
sketch8.addConstraint(Sketcher.Constraint("Equal", 3, 5))
sketch8.addConstraint(Sketcher.Constraint("Equal", 7, 9))
sketch8.addConstraint(Sketcher.Constraint("Equal", 11, 13))
sketch8.addConstraint(Sketcher.Constraint("Equal", 15, 0))
sketch8.addConstraint(Sketcher.Constraint("DistanceX", 1, 2, 1, 1, Q("0.5 mm")))
sketch8.addConstraint(Sketcher.Constraint("DistanceX", -1, 1, 1, 2, Q("26 mm")))
sketch8.addConstraint(Sketcher.Constraint("DistanceY", -1, 1, 2, 2, Q("1 mm")))
sketch8.addConstraint(Sketcher.Constraint("DistanceX", -1, 1, 4, 2, Q("21 mm")))
sketch8.addConstraint(Sketcher.Constraint("DistanceX", -1, 1, 9, 2, Q("24 mm")))
sketch8.addConstraint(Sketcher.Constraint("DistanceX", -1, 1, 13, 2, Q("19 mm")))
pad7 = doc.addObject("PartDesign::Pad", "Pad006")
body.addObject(pad7)
pad7.Profile = sketch8
pad7.Length = 1.8
doc.recompute()

fillet = doc.addObject("PartDesign::Fillet", "Fillet")
body.addObject(fillet)
fillet.Base = (pad7, edges_at(pad7, [
    (21.25, 1.5, 1.2),
    (21.25, 1, 1.2),
    (21.5, 1.25, 1.2),
    (21, 1.25, 1.2),
    (18.75, 1, 1.2),
    (18.5, 1.25, 1.2),
    (19, 1.25, 1.2),
    (18.75, 1.5, 1.2),
    (23.75, 1, 1.2),
    (24, 1.25, 1.2),
    (23.5, 1.25, 1.2),
    (23.75, 1.5, 1.2),
    (26.25, 1.5, 1.2),
    (26, 1.25, 1.2),
    (26.25, 1, 1.2),
    (26.5, 1.25, 1.2),
]))
fillet.Radius = 0.5

doc.recompute()
